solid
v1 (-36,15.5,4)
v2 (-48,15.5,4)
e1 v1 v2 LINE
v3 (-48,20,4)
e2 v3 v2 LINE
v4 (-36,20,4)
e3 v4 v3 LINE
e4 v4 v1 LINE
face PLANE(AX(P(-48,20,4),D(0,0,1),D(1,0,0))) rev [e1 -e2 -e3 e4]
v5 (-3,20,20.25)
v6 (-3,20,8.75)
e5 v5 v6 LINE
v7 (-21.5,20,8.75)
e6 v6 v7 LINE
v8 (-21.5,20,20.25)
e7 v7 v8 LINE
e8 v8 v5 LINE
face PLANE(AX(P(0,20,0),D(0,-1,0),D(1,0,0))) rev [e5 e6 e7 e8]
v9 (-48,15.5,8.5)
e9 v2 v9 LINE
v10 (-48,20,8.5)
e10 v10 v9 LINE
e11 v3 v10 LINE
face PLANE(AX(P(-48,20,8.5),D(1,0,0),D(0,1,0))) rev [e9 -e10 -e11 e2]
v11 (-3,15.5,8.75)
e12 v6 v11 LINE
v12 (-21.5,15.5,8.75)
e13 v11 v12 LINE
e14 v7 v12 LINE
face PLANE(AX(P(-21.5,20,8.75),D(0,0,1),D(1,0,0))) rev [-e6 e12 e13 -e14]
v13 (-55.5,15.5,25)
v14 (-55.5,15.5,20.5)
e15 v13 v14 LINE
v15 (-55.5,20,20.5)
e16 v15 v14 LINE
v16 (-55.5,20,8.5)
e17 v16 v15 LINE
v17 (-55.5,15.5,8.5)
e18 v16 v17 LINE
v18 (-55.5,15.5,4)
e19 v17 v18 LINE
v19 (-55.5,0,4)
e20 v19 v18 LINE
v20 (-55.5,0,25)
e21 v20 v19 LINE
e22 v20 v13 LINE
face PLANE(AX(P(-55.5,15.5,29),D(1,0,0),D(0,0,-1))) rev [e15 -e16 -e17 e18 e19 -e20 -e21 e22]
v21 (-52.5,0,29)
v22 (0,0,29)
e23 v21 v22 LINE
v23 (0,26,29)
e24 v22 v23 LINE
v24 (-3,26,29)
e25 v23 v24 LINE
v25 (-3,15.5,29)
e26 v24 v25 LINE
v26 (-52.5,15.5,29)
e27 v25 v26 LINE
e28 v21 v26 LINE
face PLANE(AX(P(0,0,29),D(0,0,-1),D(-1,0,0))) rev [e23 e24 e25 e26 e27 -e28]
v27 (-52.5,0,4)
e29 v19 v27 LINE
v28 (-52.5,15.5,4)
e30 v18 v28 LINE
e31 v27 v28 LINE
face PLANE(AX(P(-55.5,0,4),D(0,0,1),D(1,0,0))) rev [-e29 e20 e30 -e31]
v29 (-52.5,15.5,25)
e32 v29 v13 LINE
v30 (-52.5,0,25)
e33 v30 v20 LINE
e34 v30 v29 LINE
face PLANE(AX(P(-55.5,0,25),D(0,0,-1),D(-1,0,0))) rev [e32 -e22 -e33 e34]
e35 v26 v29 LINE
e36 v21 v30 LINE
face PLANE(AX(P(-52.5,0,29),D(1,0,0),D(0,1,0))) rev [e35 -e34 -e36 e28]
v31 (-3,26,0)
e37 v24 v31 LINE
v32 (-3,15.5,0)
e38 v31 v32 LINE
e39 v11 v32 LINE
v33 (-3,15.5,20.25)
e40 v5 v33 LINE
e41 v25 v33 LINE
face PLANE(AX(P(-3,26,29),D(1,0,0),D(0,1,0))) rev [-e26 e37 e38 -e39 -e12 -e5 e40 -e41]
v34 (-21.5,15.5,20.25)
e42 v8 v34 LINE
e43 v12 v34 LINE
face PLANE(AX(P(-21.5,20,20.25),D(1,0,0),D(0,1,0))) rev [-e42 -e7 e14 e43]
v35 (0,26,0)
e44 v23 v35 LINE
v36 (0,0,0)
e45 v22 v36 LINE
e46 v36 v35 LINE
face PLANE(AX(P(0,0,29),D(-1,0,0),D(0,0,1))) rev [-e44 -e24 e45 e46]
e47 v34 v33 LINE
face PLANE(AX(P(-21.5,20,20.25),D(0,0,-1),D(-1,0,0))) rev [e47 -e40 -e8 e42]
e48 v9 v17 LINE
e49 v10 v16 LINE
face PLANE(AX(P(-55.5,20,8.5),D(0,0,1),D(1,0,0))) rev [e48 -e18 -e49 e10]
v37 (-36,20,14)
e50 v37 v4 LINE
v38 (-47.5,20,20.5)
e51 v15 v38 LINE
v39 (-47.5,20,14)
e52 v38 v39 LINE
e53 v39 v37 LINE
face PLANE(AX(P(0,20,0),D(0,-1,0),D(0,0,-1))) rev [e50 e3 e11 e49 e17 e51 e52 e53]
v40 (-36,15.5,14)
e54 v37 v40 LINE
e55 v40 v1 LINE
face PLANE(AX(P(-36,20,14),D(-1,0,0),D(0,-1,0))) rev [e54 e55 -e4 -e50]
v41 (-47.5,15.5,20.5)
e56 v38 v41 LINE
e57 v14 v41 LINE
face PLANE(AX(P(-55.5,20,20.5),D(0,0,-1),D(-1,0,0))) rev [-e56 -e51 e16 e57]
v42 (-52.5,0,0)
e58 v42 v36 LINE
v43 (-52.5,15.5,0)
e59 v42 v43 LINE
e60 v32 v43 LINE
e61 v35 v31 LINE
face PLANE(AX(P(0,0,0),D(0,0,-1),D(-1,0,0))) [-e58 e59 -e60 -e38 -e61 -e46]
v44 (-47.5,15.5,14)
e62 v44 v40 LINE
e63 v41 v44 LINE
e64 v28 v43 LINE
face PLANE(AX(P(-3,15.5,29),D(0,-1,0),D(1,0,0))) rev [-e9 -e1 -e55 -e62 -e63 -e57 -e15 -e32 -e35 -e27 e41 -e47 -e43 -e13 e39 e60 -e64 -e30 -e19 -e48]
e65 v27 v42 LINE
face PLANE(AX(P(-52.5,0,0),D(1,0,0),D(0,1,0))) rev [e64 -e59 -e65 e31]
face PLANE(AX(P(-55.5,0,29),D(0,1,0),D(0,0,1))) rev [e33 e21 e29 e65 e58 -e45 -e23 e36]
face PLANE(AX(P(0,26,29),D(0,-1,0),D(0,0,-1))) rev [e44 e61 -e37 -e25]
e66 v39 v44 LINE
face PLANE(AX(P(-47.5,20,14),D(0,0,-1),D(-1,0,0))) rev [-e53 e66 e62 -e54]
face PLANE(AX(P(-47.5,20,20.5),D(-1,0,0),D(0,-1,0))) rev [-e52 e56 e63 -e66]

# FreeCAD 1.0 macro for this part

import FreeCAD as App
import Part
import Sketcher
from FreeCAD import Vector
Q = App.Units.Quantity

doc = App.newDocument("Part")
body = doc.addObject("PartDesign::Body", "Body")

sketch1 = body.newObject("Sketcher::SketchObject", "Sketch")
sketch1.AttachmentSupport = (doc.getObject("XY_Plane"), [""])
sketch1.MapMode = "FlatFace"
sketch1.addGeometry([
    Part.LineSegment(Vector(0, 0, 0), Vector(0, 26, 0)),
    Part.LineSegment(Vector(0, 26, 0), Vector(-3, 26, 0)),
    Part.LineSegment(Vector(-3, 26, 0), Vector(-3, 15.5, 0)),
    Part.LineSegment(Vector(-3, 15.5, 0), Vector(-55.5, 15.5, 0)),
    Part.LineSegment(Vector(-55.5, 15.5, 0), Vector(-55.5, 0, 0)),
    Part.LineSegment(Vector(-55.5, 0, 0), Vector(0, 0, 0)),
], False)
sketch1.addConstraint([
    Sketcher.Constraint("Coincident", 0, 2, 1, 1),
    Sketcher.Constraint("Coincident", 1, 2, 2, 1),
    Sketcher.Constraint("Coincident", 2, 2, 3, 1),
    Sketcher.Constraint("Coincident", 3, 2, 4, 1),
    Sketcher.Constraint("Coincident", 4, 2, 5, 1),
    Sketcher.Constraint("Coincident", 5, 2, 0, 1),
    Sketcher.Constraint("Vertical", 0),
    Sketcher.Constraint("Horizontal", 1),
    Sketcher.Constraint("Vertical", 2),
    Sketcher.Constraint("Horizontal", 3),
    Sketcher.Constraint("Vertical", 4),
    Sketcher.Constraint("Horizontal", 5),
    Sketcher.Constraint("Coincident", 5, 2, -1, 1),
    Sketcher.Constraint("DistanceX", 1, 2, 1, 1, Q("3 mm")),
    Sketcher.Constraint("DistanceY", 0, 1, 0, 2, Q("26 mm")),
    Sketcher.Constraint("DistanceX", 3, 2, 3, 1, Q("52.5 mm")),
    Sketcher.Constraint("DistanceY", 2, 2, 2, 1, Q("10.5 mm")),
])
pad1 = body.newObject("PartDesign::Pad", "Pad")
pad1.Profile = sketch1
pad1.Length = 29

sketch2 = body.newObject("Sketcher::SketchObject", "Sketch001")
sketch2.AttachmentSupport = (doc.getObject("XZ_Plane"), [""])
sketch2.MapMode = "FlatFace"
sketch2.AttachmentOffset = App.Placement(Vector(0, 0, -15.5), App.Rotation())
sketch2.addGeometry([
    Part.LineSegment(Vector(-55.5, 0, 0), Vector(-55.5, 4, 0)),
    Part.LineSegment(Vector(-55.5, 4, 0), Vector(-52.5, 4, 0)),
    Part.LineSegment(Vector(-52.5, 4, 0), Vector(-52.5, 0, 0)),
    Part.LineSegment(Vector(-52.5, 0, 0), Vector(-55.5, 0, 0)),
    Part.LineSegment(Vector(-55.5, 25, 0), Vector(-55.5, 29, 0)),
    Part.LineSegment(Vector(-55.5, 29, 0), Vector(-52.5, 29, 0)),
    Part.LineSegment(Vector(-52.5, 29, 0), Vector(-52.5, 25, 0)),
    Part.LineSegment(Vector(-52.5, 25, 0), Vector(-55.5, 25, 0)),
], False)
sketch2.addConstraint([
    Sketcher.Constraint("Coincident", 0, 2, 1, 1),
    Sketcher.Constraint("Coincident", 1, 2, 2, 1),
    Sketcher.Constraint("Coincident", 2, 2, 3, 1),
    Sketcher.Constraint("Coincident", 3, 2, 0, 1),
    Sketcher.Constraint("Coincident", 4, 2, 5, 1),
    Sketcher.Constraint("Coincident", 5, 2, 6, 1),
    Sketcher.Constraint("Coincident", 6, 2, 7, 1),
    Sketcher.Constraint("Coincident", 7, 2, 4, 1),
    Sketcher.Constraint("Vertical", 0),
    Sketcher.Constraint("Horizontal", 1),
    Sketcher.Constraint("Vertical", 2),
    Sketcher.Constraint("Horizontal", 3),
    Sketcher.Constraint("Vertical", 4),
    Sketcher.Constraint("Horizontal", 5),
    Sketcher.Constraint("Vertical", 6),
    Sketcher.Constraint("Horizontal", 7),
    Sketcher.Constraint("PointOnObject", 2, 2, -1),
    Sketcher.Constraint("Vertical", 3, 2, 4, 2),
    Sketcher.Constraint("Vertical", 2, 2, 5, 2),
    Sketcher.Constraint("Equal", 2, 4),
    Sketcher.Constraint("DistanceX", 1, 1, 1, 2, Q("3 mm")),
    Sketcher.Constraint("DistanceY", 0, 1, 0, 2, Q("4 mm")),
    Sketcher.Constraint("DistanceY", -1, 1, 4, 2, Q("29 mm")),
    Sketcher.Constraint("DistanceX", 0, 2, -1, 1, Q("55.5 mm")),
])
pocket1 = body.newObject("PartDesign::Pocket", "Pocket")
pocket1.Profile = sketch2
pocket1.Type = "ThroughAll"
pocket1.Reversed = True

sketch3 = body.newObject("Sketcher::SketchObject", "Sketch002")
sketch3.AttachmentSupport = (doc.getObject("XZ_Plane"), [""])
sketch3.MapMode = "FlatFace"
sketch3.AttachmentOffset = App.Placement(Vector(0, 0, -15.5), App.Rotation())
sketch3.addGeometry([
    Part.LineSegment(Vector(-21.5, 8.8, 0), Vector(-21.5, 20.2, 0)),
    Part.LineSegment(Vector(-21.5, 20.2, 0), Vector(-3, 20.2, 0)),
    Part.LineSegment(Vector(-3, 20.2, 0), Vector(-3, 8.8, 0)),
    Part.LineSegment(Vector(-3, 8.8, 0), Vector(-21.5, 8.8, 0)),
    Part.LineSegment(Vector(-55.5, 20.5, 0), Vector(-47.5, 20.5, 0)),
    Part.LineSegment(Vector(-47.5, 20.5, 0), Vector(-47.5, 14, 0)),
    Part.LineSegment(Vector(-47.5, 14, 0), Vector(-36, 14, 0)),
    Part.LineSegment(Vector(-36, 14, 0), Vector(-36, 4, 0)),
    Part.LineSegment(Vector(-36, 4, 0), Vector(-48, 4, 0)),
    Part.LineSegment(Vector(-48, 4, 0), Vector(-48, 8.5, 0)),
    Part.LineSegment(Vector(-48, 8.5, 0), Vector(-55.5, 8.5, 0)),
    Part.LineSegment(Vector(-55.5, 8.5, 0), Vector(-55.5, 20.5, 0)),
], False)
sketch3.addConstraint([
    Sketcher.Constraint("Coincident", 0, 2, 1, 1),
    Sketcher.Constraint("Coincident", 1, 2, 2, 1),
    Sketcher.Constraint("Coincident", 2, 2, 3, 1),
    Sketcher.Constraint("Coincident", 3, 2, 0, 1),
    Sketcher.Constraint("Coincident", 4, 2, 5, 1),
    Sketcher.Constraint("Coincident", 5, 2, 6, 1),
    Sketcher.Constraint("Coincident", 6, 2, 7, 1),
    Sketcher.Constraint("Coincident", 7, 2, 8, 1),
    Sketcher.Constraint("Coincident", 8, 2, 9, 1),
    Sketcher.Constraint("Coincident", 9, 2, 10, 1),
    Sketcher.Constraint("Coincident", 10, 2, 11, 1),
    Sketcher.Constraint("Coincident", 11, 2, 4, 1),
    Sketcher.Constraint("Vertical", 0),
    Sketcher.Constraint("Horizontal", 1),
    Sketcher.Constraint("Vertical", 2),
    Sketcher.Constraint("Horizontal", 3),
    Sketcher.Constraint("Horizontal", 4),
    Sketcher.Constraint("Vertical", 5),
    Sketcher.Constraint("Horizontal", 6),
    Sketcher.Constraint("Vertical", 7),
    Sketcher.Constraint("Horizontal", 8),
    Sketcher.Constraint("Vertical", 9),
    Sketcher.Constraint("Horizontal", 10),
    Sketcher.Constraint("Vertical", 11),
    Sketcher.Constraint("Equal", 6, 0),
    Sketcher.Constraint("Equal", 8, 11),
    Sketcher.Constraint("DistanceX", 4, 1, 4, 2, Q("8 mm")),
    Sketcher.Constraint("DistanceX", 8, 2, 8, 1, Q("12 mm")),
    Sketcher.Constraint("DistanceY", 7, 2, 7, 1, Q("10 mm")),
    Sketcher.Constraint("DistanceX", 1, 1, 1, 2, Q("18.5 mm")),
    Sketcher.Constraint("DistanceX", 6, 1, 6, 2, Q("11.5 mm")),
    Sketcher.Constraint("DistanceY", 5, 2, 5, 1, Q("6.5 mm")),
    Sketcher.Constraint("DistanceX", 1, 2, -1, 1, Q("3 mm")),
    Sketcher.Constraint("DistanceY", -1, 1, 5, 2, Q("14 mm")),
    Sketcher.Constraint("DistanceX", 6, 2, -1, 1, Q("36 mm")),
    Sketcher.Constraint("DistanceY", -1, 1, 0, 2, Q("20.25 mm")),
])
pad2 = body.newObject("PartDesign::Pad", "Pad001")
pad2.Profile = sketch3
pad2.Length = 4.5
pad2.Reversed = True

doc.recompute()
